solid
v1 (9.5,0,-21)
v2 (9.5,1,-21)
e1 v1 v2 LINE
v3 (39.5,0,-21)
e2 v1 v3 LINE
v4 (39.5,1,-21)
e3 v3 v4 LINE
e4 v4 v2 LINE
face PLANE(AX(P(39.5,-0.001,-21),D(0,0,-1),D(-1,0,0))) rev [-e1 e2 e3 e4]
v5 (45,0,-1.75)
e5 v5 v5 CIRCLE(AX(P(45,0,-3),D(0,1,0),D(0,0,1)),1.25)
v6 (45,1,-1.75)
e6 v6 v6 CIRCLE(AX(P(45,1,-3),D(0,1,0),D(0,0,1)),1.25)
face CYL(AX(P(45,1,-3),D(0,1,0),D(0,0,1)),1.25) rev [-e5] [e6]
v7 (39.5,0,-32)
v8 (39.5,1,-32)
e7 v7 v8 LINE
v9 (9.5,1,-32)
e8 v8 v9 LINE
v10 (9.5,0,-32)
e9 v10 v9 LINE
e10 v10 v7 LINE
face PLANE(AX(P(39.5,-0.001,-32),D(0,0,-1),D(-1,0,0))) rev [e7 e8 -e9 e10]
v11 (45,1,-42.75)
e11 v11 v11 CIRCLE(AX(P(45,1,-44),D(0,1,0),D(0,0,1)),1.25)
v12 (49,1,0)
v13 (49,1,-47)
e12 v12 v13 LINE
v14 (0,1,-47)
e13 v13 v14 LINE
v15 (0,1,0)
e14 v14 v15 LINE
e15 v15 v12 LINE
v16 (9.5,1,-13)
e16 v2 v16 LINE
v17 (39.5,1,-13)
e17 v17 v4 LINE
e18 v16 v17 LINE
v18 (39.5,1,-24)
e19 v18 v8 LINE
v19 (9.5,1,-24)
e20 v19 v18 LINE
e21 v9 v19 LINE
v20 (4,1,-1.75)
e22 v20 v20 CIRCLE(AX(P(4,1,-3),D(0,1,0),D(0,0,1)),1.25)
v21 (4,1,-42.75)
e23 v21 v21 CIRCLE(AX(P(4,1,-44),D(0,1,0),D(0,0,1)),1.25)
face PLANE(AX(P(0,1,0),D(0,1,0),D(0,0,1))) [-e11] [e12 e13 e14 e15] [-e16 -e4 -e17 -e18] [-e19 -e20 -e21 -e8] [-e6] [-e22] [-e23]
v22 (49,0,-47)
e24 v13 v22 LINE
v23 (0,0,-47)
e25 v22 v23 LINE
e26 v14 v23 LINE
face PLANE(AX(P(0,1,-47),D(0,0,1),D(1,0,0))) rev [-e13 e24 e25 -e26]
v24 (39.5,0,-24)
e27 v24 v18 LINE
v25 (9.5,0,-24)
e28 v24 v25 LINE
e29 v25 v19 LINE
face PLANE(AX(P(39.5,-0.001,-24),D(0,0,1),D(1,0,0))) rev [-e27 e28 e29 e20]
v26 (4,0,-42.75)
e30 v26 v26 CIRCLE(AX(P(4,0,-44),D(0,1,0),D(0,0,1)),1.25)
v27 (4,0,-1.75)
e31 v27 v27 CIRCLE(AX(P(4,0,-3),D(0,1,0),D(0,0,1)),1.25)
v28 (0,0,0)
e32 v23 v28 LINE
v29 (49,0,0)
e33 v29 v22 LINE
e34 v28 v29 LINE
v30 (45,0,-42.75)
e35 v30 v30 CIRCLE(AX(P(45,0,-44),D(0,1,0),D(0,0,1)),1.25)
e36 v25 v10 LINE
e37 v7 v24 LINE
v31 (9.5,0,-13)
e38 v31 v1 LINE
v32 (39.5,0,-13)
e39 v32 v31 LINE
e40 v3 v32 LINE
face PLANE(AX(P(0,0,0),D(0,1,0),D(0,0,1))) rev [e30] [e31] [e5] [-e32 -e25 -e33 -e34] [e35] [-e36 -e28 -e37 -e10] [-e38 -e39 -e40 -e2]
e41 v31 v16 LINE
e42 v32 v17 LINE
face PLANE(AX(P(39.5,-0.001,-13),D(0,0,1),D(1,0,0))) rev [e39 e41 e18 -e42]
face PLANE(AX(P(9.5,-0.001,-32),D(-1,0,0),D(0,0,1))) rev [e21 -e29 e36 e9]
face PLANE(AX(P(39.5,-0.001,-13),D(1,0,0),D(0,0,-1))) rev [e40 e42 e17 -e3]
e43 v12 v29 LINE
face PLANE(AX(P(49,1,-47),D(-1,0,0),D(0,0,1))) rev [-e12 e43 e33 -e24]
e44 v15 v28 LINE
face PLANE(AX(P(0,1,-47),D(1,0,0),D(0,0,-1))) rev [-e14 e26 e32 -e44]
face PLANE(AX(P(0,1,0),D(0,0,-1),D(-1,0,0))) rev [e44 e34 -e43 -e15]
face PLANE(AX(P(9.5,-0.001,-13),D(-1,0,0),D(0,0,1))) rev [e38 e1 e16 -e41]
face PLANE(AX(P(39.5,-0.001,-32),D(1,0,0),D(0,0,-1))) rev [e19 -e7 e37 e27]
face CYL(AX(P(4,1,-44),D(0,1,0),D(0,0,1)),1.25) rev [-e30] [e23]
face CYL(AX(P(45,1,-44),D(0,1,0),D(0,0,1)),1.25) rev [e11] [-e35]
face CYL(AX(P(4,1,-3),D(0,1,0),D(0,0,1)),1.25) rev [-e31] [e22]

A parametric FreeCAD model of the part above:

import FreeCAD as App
import Part
import Sketcher
from FreeCAD import Vector

doc = App.newDocument("Part")
params = doc.addObject("Spreadsheet::Sheet", "Params")
for row, (alias, value) in enumerate([
    ("sketch1_width", "49 mm"),
    ("sketch1_height", "47 mm"),
    ("pad1_length", "1 mm"),
    ("sketch2_diameter", "2.5 mm"),
    ("hole_diameter", "2.5 mm"),
    ("sketch3_width", "30 mm"),
    ("sketch3_height", "8 mm"),
    ("sketch4_width", "30 mm"),
    ("sketch4_height", "8 mm"),
], start=1):
    params.set(f"A{row}", alias)
    params.set(f"B{row}", "=" + value)
    params.setAlias(f"B{row}", alias)

body = doc.addObject("PartDesign::Body", "Body")

# Sketch on XZ plane
sketch1 = body.newObject("Sketcher::SketchObject", "Sketch")
sketch1.AttachmentSupport = (doc.getObject("XZ_Plane"), [""])
sketch1.MapMode = "FlatFace"
sketch1.addGeometry(Part.LineSegment(Vector(0, -47, 0), Vector(0, 0, 0)), False)
sketch1.addGeometry(Part.LineSegment(Vector(0, 0, 0), Vector(49, 0, 0)), False)
sketch1.addGeometry(Part.LineSegment(Vector(49, 0, 0), Vector(49, -47, 0)), False)
sketch1.addGeometry(Part.LineSegment(Vector(49, -47, 0), Vector(0, -47, 0)), False)
sketch1.addConstraint(Sketcher.Constraint("Coincident", 0, 2, 1, 1))
sketch1.addConstraint(Sketcher.Constraint("Coincident", 1, 2, 2, 1))
sketch1.addConstraint(Sketcher.Constraint("Coincident", 2, 2, 3, 1))
sketch1.addConstraint(Sketcher.Constraint("Coincident", 3, 2, 0, 1))
sketch1.addConstraint(Sketcher.Constraint("Vertical", 0))
sketch1.addConstraint(Sketcher.Constraint("Horizontal", 1))
sketch1.addConstraint(Sketcher.Constraint("Vertical", 2))
sketch1.addConstraint(Sketcher.Constraint("Horizontal", 3))
sketch1.addConstraint(Sketcher.Constraint("Coincident", 0, 2, -1, 1))
sketch1.addConstraint(Sketcher.Constraint("DistanceX", 1, 1, 1, 2, 49.0))
sketch1.addConstraint(Sketcher.Constraint("DistanceY", 0, 1, 0, 2, 47.0))
sketch1.setExpression("Constraints[9]", "Params.sketch1_width")
sketch1.setExpression("Constraints[10]", "Params.sketch1_height")
pad1 = body.newObject("PartDesign::Pad", "Pad")
pad1.Profile = sketch1
pad1.setExpression("Length", "Params.pad1_length")
pad1.Reversed = True

# Sketch on XZ plane
sketch2 = body.newObject("Sketcher::SketchObject", "Sketch001")
sketch2.AttachmentSupport = (doc.getObject("XZ_Plane"), [""])
sketch2.MapMode = "FlatFace"
sketch2.AttachmentOffset = App.Placement(Vector(0, 0, -1), App.Rotation())
sketch2.addGeometry(Part.Circle(Vector(4, -44, 0), Vector(0, 0, 1), 1.25), False)
sketch2.addGeometry(Part.Circle(Vector(4, -3, 0), Vector(0, 0, 1), 1.25), False)
sketch2.addGeometry(Part.Circle(Vector(45, -3, 0), Vector(0, 0, 1), 1.25), False)
sketch2.addGeometry(Part.Circle(Vector(45, -44, 0), Vector(0, 0, 1), 1.25), False)
sketch2.addConstraint(Sketcher.Constraint("Equal", 0, 1))
sketch2.addConstraint(Sketcher.Constraint("Equal", 1, 2))
sketch2.addConstraint(Sketcher.Constraint("Equal", 2, 3))
sketch2.addConstraint(Sketcher.Constraint("Horizontal", 1, 3, 2, 3))
sketch2.addConstraint(Sketcher.Constraint("Horizontal", 0, 3, 3, 3))
sketch2.addConstraint(Sketcher.Constraint("Vertical", 0, 3, 1, 3))
sketch2.addConstraint(Sketcher.Constraint("Vertical", 2, 3, 3, 3))
sketch2.addConstraint(Sketcher.Constraint("Diameter", 0, 2.5))
sketch2.addConstraint(Sketcher.Constraint("DistanceX", -1, 1, 0, 3, 4.0))
sketch2.addConstraint(Sketcher.Constraint("DistanceY", 0, 3, -1, 1, 44.0))
sketch2.addConstraint(Sketcher.Constraint("DistanceY", 1, 3, -1, 1, 3.0))
sketch2.addConstraint(Sketcher.Constraint("DistanceX", -1, 1, 2, 3, 45.0))
sketch2.setExpression("Constraints[7]", "Params.sketch2_diameter")
doc.recompute()
hole = body.newObject("PartDesign::Hole", "Hole")
hole.Profile = sketch2
hole.ThreadType = "None"
hole.setExpression("Diameter", "Params.hole_diameter")
hole.DepthType = "ThroughAll"
hole.Reversed = True

# Sketch on XZ plane
sketch3 = body.newObject("Sketcher::SketchObject", "Sketch002")
sketch3.AttachmentSupport = (doc.getObject("XZ_Plane"), [""])
sketch3.MapMode = "FlatFace"
sketch3.AttachmentOffset = App.Placement(Vector(0, 0, -1), App.Rotation())
sketch3.addGeometry(Part.LineSegment(Vector(9.5, -21, 0), Vector(9.5, -13, 0)), False)
sketch3.addGeometry(Part.LineSegment(Vector(9.5, -13, 0), Vector(39.5, -13, 0)), False)
sketch3.addGeometry(Part.LineSegment(Vector(39.5, -13, 0), Vector(39.5, -21, 0)), False)
sketch3.addGeometry(Part.LineSegment(Vector(39.5, -21, 0), Vector(9.5, -21, 0)), False)
sketch3.addConstraint(Sketcher.Constraint("Coincident", 0, 2, 1, 1))
sketch3.addConstraint(Sketcher.Constraint("Coincident", 1, 2, 2, 1))
sketch3.addConstraint(Sketcher.Constraint("Coincident", 2, 2, 3, 1))
sketch3.addConstraint(Sketcher.Constraint("Coincident", 3, 2, 0, 1))
sketch3.addConstraint(Sketcher.Constraint("Vertical", 0))
sketch3.addConstraint(Sketcher.Constraint("Horizontal", 1))
sketch3.addConstraint(Sketcher.Constraint("Vertical", 2))
sketch3.addConstraint(Sketcher.Constraint("Horizontal", 3))
sketch3.addConstraint(Sketcher.Constraint("DistanceX", 1, 1, 1, 2, 30.0))
sketch3.addConstraint(Sketcher.Constraint("DistanceY", 0, 1, 0, 2, 8.0))
sketch3.addConstraint(Sketcher.Constraint("DistanceY", 0, 2, -1, 1, 13.0))
sketch3.addConstraint(Sketcher.Constraint("DistanceX", -1, 1, 0, 2, 9.5))
sketch3.setExpression("Constraints[8]", "Params.sketch3_width")
sketch3.setExpression("Constraints[9]", "Params.sketch3_height")
pocket1 = body.newObject("PartDesign::Pocket", "Pocket")
pocket1.Profile = sketch3
pocket1.Type = "UpToFirst"
pocket1.Reversed = True

# Sketch on XZ plane
sketch4 = body.newObject("Sketcher::SketchObject", "Sketch003")
sketch4.AttachmentSupport = (doc.getObject("XZ_Plane"), [""])
sketch4.MapMode = "FlatFace"
sketch4.AttachmentOffset = App.Placement(Vector(0, 0, -1), App.Rotation())
sketch4.addGeometry(Part.LineSegment(Vector(9.5, -32, 0), Vector(9.5, -24, 0)), False)
sketch4.addGeometry(Part.LineSegment(Vector(9.5, -24, 0), Vector(39.5, -24, 0)), False)
sketch4.addGeometry(Part.LineSegment(Vector(39.5, -24, 0), Vector(39.5, -32, 0)), False)
sketch4.addGeometry(Part.LineSegment(Vector(39.5, -32, 0), Vector(9.5, -32, 0)), False)
sketch4.addConstraint(Sketcher.Constraint("Coincident", 0, 2, 1, 1))
sketch4.addConstraint(Sketcher.Constraint("Coincident", 1, 2, 2, 1))
sketch4.addConstraint(Sketcher.Constraint("Coincident", 2, 2, 3, 1))
sketch4.addConstraint(Sketcher.Constraint("Coincident", 3, 2, 0, 1))
sketch4.addConstraint(Sketcher.Constraint("Vertical", 0))
sketch4.addConstraint(Sketcher.Constraint("Horizontal", 1))
sketch4.addConstraint(Sketcher.Constraint("Vertical", 2))
sketch4.addConstraint(Sketcher.Constraint("Horizontal", 3))
sketch4.addConstraint(Sketcher.Constraint("DistanceX", 1, 1, 1, 2, 30.0))
sketch4.addConstraint(Sketcher.Constraint("DistanceY", 0, 1, 0, 2, 8.0))
sketch4.addConstraint(Sketcher.Constraint("DistanceY", 0, 2, -1, 1, 24.0))
sketch4.addConstraint(Sketcher.Constraint("DistanceX", -1, 1, 0, 2, 9.5))
sketch4.setExpression("Constraints[8]", "Params.sketch4_width")
sketch4.setExpression("Constraints[9]", "Params.sketch4_height")
pocket2 = body.newObject("PartDesign::Pocket", "Pocket001")
pocket2.Profile = sketch4
pocket2.Type = "UpToFirst"
pocket2.Reversed = True

doc.recompute()
